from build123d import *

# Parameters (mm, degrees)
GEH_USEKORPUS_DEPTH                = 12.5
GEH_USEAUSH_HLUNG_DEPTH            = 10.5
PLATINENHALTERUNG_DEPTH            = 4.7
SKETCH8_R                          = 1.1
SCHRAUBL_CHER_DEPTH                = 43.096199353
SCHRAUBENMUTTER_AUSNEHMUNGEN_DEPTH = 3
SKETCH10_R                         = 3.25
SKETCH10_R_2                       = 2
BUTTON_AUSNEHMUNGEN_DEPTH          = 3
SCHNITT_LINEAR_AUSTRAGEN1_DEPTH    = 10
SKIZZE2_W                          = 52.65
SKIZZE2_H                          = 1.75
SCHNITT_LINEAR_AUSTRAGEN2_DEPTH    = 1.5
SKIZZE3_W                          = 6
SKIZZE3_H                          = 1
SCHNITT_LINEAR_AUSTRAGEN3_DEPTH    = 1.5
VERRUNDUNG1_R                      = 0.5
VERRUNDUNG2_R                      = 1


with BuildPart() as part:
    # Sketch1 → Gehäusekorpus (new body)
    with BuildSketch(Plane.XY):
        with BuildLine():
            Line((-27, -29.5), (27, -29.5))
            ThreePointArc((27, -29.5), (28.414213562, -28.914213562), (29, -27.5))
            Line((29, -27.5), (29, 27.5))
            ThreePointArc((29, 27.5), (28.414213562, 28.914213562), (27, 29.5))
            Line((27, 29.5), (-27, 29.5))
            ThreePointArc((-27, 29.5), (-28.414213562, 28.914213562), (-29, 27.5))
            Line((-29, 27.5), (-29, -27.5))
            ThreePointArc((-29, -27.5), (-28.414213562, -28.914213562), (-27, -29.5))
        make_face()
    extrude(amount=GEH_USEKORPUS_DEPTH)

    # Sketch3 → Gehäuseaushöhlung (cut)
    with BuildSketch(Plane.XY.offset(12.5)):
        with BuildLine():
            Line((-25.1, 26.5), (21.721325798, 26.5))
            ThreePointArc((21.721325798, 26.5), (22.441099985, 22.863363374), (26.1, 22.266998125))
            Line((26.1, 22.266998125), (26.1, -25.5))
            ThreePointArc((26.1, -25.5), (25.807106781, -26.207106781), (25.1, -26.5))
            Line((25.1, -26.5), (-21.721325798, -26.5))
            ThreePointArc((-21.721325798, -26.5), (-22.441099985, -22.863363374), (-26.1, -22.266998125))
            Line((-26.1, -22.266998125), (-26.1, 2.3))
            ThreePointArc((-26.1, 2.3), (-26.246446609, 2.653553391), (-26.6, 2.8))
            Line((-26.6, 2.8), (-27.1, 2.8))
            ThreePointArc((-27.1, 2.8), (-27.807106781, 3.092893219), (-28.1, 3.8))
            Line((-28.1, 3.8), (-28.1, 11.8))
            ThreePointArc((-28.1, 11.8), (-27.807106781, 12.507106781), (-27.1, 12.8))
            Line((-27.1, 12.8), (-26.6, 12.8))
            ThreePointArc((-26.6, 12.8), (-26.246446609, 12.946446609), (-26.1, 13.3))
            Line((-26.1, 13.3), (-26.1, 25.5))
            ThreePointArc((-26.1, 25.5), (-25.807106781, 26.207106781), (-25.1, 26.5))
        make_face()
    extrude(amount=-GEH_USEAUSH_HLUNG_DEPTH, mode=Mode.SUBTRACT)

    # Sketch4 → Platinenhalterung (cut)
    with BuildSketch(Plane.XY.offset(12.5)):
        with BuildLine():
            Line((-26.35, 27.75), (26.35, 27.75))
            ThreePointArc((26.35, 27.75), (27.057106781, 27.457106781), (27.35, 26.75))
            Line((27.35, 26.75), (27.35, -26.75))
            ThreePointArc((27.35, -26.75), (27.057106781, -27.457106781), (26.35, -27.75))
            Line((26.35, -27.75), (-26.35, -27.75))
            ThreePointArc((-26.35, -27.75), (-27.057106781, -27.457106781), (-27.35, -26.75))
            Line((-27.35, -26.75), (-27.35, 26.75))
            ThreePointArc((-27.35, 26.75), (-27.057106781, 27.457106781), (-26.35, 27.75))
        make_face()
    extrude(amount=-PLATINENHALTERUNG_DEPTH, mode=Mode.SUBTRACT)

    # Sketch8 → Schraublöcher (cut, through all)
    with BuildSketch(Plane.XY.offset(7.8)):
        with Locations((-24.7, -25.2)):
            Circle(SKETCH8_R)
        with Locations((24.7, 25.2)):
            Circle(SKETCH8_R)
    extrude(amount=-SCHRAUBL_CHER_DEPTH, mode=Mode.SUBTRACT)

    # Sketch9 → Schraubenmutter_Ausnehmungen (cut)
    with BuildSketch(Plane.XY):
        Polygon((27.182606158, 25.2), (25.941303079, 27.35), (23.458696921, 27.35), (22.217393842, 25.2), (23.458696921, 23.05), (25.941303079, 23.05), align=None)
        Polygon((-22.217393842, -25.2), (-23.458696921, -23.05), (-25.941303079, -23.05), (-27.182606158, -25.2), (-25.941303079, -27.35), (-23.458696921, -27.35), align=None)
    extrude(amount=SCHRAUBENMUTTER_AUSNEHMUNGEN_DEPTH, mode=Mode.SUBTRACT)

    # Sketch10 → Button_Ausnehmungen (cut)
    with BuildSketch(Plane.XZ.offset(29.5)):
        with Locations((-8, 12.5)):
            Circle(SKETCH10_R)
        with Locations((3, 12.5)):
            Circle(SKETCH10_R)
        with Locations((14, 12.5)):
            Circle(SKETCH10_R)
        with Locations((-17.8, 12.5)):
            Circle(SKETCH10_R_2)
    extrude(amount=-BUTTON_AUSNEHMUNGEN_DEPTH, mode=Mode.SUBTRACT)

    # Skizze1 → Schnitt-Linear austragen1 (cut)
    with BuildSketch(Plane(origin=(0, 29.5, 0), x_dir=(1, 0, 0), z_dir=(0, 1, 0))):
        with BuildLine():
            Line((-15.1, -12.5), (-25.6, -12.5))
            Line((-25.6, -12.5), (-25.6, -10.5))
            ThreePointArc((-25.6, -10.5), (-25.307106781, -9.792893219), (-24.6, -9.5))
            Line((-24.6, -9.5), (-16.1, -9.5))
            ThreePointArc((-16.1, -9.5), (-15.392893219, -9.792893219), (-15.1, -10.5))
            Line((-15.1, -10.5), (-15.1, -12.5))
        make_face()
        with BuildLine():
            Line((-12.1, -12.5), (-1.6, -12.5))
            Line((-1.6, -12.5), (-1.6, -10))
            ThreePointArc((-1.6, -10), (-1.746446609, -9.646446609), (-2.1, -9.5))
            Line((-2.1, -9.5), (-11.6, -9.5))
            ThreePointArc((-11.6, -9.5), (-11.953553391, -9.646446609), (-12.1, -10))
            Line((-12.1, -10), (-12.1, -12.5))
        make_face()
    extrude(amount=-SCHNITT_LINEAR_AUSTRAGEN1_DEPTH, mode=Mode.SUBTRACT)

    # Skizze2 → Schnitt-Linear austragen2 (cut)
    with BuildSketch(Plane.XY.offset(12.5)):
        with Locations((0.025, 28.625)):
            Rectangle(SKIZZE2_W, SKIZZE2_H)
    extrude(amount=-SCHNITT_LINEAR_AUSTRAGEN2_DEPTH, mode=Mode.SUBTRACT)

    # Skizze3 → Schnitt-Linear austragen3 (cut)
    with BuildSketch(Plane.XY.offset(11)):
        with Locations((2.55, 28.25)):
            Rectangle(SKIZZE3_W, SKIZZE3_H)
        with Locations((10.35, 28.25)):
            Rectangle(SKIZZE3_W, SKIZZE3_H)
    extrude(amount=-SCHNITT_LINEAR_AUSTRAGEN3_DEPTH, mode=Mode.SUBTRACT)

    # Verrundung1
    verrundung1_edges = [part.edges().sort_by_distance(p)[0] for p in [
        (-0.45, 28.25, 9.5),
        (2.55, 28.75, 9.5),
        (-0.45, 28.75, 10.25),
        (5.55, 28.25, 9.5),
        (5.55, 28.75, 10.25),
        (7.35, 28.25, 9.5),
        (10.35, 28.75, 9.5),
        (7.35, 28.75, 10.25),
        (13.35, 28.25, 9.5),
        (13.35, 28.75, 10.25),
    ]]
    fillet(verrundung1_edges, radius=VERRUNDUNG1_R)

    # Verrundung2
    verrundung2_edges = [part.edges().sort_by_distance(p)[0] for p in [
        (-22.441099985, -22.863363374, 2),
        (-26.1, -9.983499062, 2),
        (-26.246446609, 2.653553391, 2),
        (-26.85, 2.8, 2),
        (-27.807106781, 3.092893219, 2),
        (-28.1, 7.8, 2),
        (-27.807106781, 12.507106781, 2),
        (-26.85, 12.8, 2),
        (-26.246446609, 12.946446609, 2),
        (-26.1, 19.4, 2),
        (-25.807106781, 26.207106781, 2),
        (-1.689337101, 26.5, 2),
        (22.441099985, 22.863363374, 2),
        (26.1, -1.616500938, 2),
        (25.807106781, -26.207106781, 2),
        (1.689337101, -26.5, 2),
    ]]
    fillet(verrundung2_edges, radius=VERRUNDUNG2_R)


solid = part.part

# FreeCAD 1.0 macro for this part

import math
import FreeCAD as App
import Part
import Sketcher

V = App.Vector
Q = App.Units.Quantity


def edges_at(feature, points):
    """Names of the edges that pass closest to the given points."""
    edges = feature.Shape.Edges
    near = lambda p: min(range(len(edges)), key=lambda i: edges[i].distToShape(Part.Vertex(*p))[0])
    return sorted({f"Edge{near(p) + 1}" for p in points})


def add_polygon(sketch, points):
    """Adds a closed chain of lines whose ends are joined by coincident constraints."""
    first, n = sketch.GeometryCount, len(points)
    for a, b in zip(points, points[1:] + points[:1]):
        sketch.addGeometry(Part.LineSegment(App.Vector(*a, 0), App.Vector(*b, 0)), False)
    for i in range(n):
        sketch.addConstraint(Sketcher.Constraint("Coincident", first + i, 2, first + (i + 1) % n, 1))

doc = App.newDocument("Part")
body = doc.addObject("PartDesign::Body", "Body")

sketch1 = doc.addObject("Sketcher::SketchObject", "Sketch")
body.addObject(sketch1)
sketch1.AttachmentSupport = (doc.XY_Plane, [""])
sketch1.MapMode = "FlatFace"
sketch1.addGeometry(Part.LineSegment(V(-27, -29.5, 0), V(27, -29.5, 0)), False)
sketch1.addGeometry(Part.ArcOfCircle(Part.Circle(V(27, -27.5, 0), V(0, 0, 1), 2), math.radians(-90), math.radians(0)), False)
sketch1.addGeometry(Part.LineSegment(V(29, -27.5, 0), V(29, 27.5, 0)), False)
sketch1.addGeometry(Part.ArcOfCircle(Part.Circle(V(27, 27.5, 0), V(0, 0, 1), 2), math.radians(0), math.radians(90)), False)
sketch1.addGeometry(Part.LineSegment(V(27, 29.5, 0), V(-27, 29.5, 0)), False)
sketch1.addGeometry(Part.ArcOfCircle(Part.Circle(V(-27, 27.5, 0), V(0, 0, 1), 2), math.radians(90), math.radians(180)), False)
sketch1.addGeometry(Part.LineSegment(V(-29, 27.5, 0), V(-29, -27.5, 0)), False)
sketch1.addGeometry(Part.ArcOfCircle(Part.Circle(V(-27, -27.5, 0), V(0, 0, 1), 2), math.radians(-180), math.radians(-90)), False)
sketch1.addConstraint(Sketcher.Constraint("Tangent", 0, 2, 1, 1))
sketch1.addConstraint(Sketcher.Constraint("Tangent", 1, 2, 2, 1))
sketch1.addConstraint(Sketcher.Constraint("Tangent", 2, 2, 3, 1))
sketch1.addConstraint(Sketcher.Constraint("Tangent", 3, 2, 4, 1))
sketch1.addConstraint(Sketcher.Constraint("Tangent", 4, 2, 5, 1))
sketch1.addConstraint(Sketcher.Constraint("Tangent", 5, 2, 6, 1))
sketch1.addConstraint(Sketcher.Constraint("Tangent", 6, 2, 7, 1))
sketch1.addConstraint(Sketcher.Constraint("Tangent", 7, 2, 0, 1))
sketch1.addConstraint(Sketcher.Constraint("Horizontal", 0))
sketch1.addConstraint(Sketcher.Constraint("Vertical", 2))
sketch1.addConstraint(Sketcher.Constraint("Horizontal", 4))
sketch1.addConstraint(Sketcher.Constraint("Vertical", 6))
sketch1.addConstraint(Sketcher.Constraint("Equal", 1, 3))
sketch1.addConstraint(Sketcher.Constraint("Equal", 3, 5))
sketch1.addConstraint(Sketcher.Constraint("Equal", 5, 7))
sketch1.addConstraint(Sketcher.Constraint("Symmetric", 1, 3, 5, 3, -1, 1))
sketch1.addConstraint(Sketcher.Constraint("Radius", 1, Q("2 mm")))
sketch1.addConstraint(Sketcher.Constraint("DistanceX", 0, 1, 0, 2, Q("54 mm")))
sketch1.addConstraint(Sketcher.Constraint("DistanceY", 2, 1, 2, 2, Q("55 mm")))
pad1 = doc.addObject("PartDesign::Pad", "Pad")
body.addObject(pad1)
pad1.Profile = sketch1
pad1.Length = 12.5

sketch2 = doc.addObject("Sketcher::SketchObject", "Sketch001")
body.addObject(sketch2)
sketch2.AttachmentSupport = (doc.XY_Plane, [""])
sketch2.MapMode = "FlatFace"
sketch2.AttachmentOffset = App.Placement(V(0, 0, 12.5), App.Rotation())
sketch2.addGeometry(Part.LineSegment(V(21.72, 26.5, 0), V(-25.1, 26.5, 0)), False)
sketch2.addGeometry(Part.ArcOfCircle(Part.Circle(V(-25.1, 25.5, 0), V(0, 0, 1), 1), math.radians(90), math.radians(180)), False)
sketch2.addGeometry(Part.LineSegment(V(-26.1, 25.5, 0), V(-26.1, 13.3, 0)), False)
sketch2.addGeometry(Part.ArcOfCircle(Part.Circle(V(-26.6, 13.3, 0), V(0, 0, 1), 0.5), math.radians(-90), math.radians(0)), False)
sketch2.addGeometry(Part.LineSegment(V(-26.6, 12.8, 0), V(-27.1, 12.8, 0)), False)
sketch2.addGeometry(Part.ArcOfCircle(Part.Circle(V(-27.1, 11.8, 0), V(0, 0, 1), 1), math.radians(90), math.radians(180)), False)
sketch2.addGeometry(Part.LineSegment(V(-28.1, 11.8, 0), V(-28.1, 3.8, 0)), False)
sketch2.addGeometry(Part.ArcOfCircle(Part.Circle(V(-27.1, 3.8, 0), V(0, 0, 1), 1), math.radians(-180), math.radians(-90)), False)
sketch2.addGeometry(Part.LineSegment(V(-27.1, 2.8, 0), V(-26.6, 2.8, 0)), False)
sketch2.addGeometry(Part.ArcOfCircle(Part.Circle(V(-26.6, 2.3, 0), V(0, 0, 1), 0.5), math.radians(0), math.radians(90)), False)
sketch2.addGeometry(Part.LineSegment(V(-26.1, 2.3, 0), V(-26.1, -22.27, 0)), False)
sketch2.addGeometry(Part.ArcOfCircle(Part.Circle(V(-24.7, -25.2, 0), V(0, 0, 1), 3.25), math.radians(-24), math.radians(116)), False)
sketch2.addGeometry(Part.LineSegment(V(-21.72, -26.5, 0), V(25.1, -26.5, 0)), False)
sketch2.addGeometry(Part.ArcOfCircle(Part.Circle(V(25.1, -25.5, 0), V(0, 0, 1), 1), math.radians(-90), math.radians(0)), False)
sketch2.addGeometry(Part.LineSegment(V(26.1, -25.5, 0), V(26.1, 22.27, 0)), False)
sketch2.addGeometry(Part.ArcOfCircle(Part.Circle(V(24.7, 25.2, 0), V(0, 0, 1), 3.25), math.radians(156), math.radians(296)), False)
sketch2.addConstraint(Sketcher.Constraint("Tangent", 0, 2, 1, 1))
sketch2.addConstraint(Sketcher.Constraint("Tangent", 1, 2, 2, 1))
sketch2.addConstraint(Sketcher.Constraint("Tangent", 2, 2, 3, 2))
sketch2.addConstraint(Sketcher.Constraint("Tangent", 3, 1, 4, 1))
sketch2.addConstraint(Sketcher.Constraint("Tangent", 4, 2, 5, 1))
sketch2.addConstraint(Sketcher.Constraint("Tangent", 5, 2, 6, 1))
sketch2.addConstraint(Sketcher.Constraint("Tangent", 6, 2, 7, 1))
sketch2.addConstraint(Sketcher.Constraint("Tangent", 7, 2, 8, 1))
sketch2.addConstraint(Sketcher.Constraint("Tangent", 8, 2, 9, 2))
sketch2.addConstraint(Sketcher.Constraint("Tangent", 9, 1, 10, 1))
sketch2.addConstraint(Sketcher.Constraint("Coincident", 10, 2, 11, 2))
sketch2.addConstraint(Sketcher.Constraint("Coincident", 11, 1, 12, 1))
sketch2.addConstraint(Sketcher.Constraint("Tangent", 12, 2, 13, 1))
sketch2.addConstraint(Sketcher.Constraint("Tangent", 13, 2, 14, 1))
sketch2.addConstraint(Sketcher.Constraint("Coincident", 14, 2, 15, 2))
sketch2.addConstraint(Sketcher.Constraint("Coincident", 15, 1, 0, 1))
sketch2.addConstraint(Sketcher.Constraint("Horizontal", 0))
sketch2.addConstraint(Sketcher.Constraint("Vertical", 2))
sketch2.addConstraint(Sketcher.Constraint("Horizontal", 4))
sketch2.addConstraint(Sketcher.Constraint("Vertical", 6))
sketch2.addConstraint(Sketcher.Constraint("Horizontal", 8))
sketch2.addConstraint(Sketcher.Constraint("Vertical", 10))
sketch2.addConstraint(Sketcher.Constraint("Horizontal", 12))
sketch2.addConstraint(Sketcher.Constraint("Vertical", 14))
sketch2.addConstraint(Sketcher.Constraint("Equal", 1, 5))
sketch2.addConstraint(Sketcher.Constraint("Equal", 5, 7))
sketch2.addConstraint(Sketcher.Constraint("Equal", 3, 9))
sketch2.addConstraint(Sketcher.Constraint("Equal", 7, 13))
sketch2.addConstraint(Sketcher.Constraint("Equal", 11, 15))
sketch2.addConstraint(Sketcher.Constraint("Symmetric", 1, 3, 13, 3, -1, 1))
sketch2.addConstraint(Sketcher.Constraint("Symmetric", 11, 3, 15, 3, -1, 1))
sketch2.addConstraint(Sketcher.Constraint("Vertical", 3, 3, 9, 3))
sketch2.addConstraint(Sketcher.Constraint("Radius", 1, Q("1 mm")))
sketch2.addConstraint(Sketcher.Constraint("Radius", 3, Q("0.5 mm")))
sketch2.addConstraint(Sketcher.Constraint("DistanceY", 6, 2, 6, 1, Q("8 mm")))
sketch2.addConstraint(Sketcher.Constraint("Radius", 11, Q("3.25 mm")))
sketch2.addConstraint(Sketcher.Constraint("DistanceX", 4, 2, 4, 1, Q("0.5 mm")))
sketch2.addConstraint(Sketcher.Constraint("DistanceY", 2, 2, 2, 1, Q("12.2 mm")))
sketch2.addConstraint(Sketcher.Constraint("DistanceY", 11, 3, 7, 3, Q("29 mm")))
sketch2.addConstraint(Sketcher.Constraint("DistanceX", 1, 3, -1, 1, Q("25.1 mm")))
sketch2.addConstraint(Sketcher.Constraint("DistanceY", -1, 1, 1, 3, Q("25.5 mm")))
sketch2.addConstraint(Sketcher.Constraint("DistanceX", 11, 3, -1, 1, Q("24.7 mm")))
pocket1 = doc.addObject("PartDesign::Pocket", "Pocket")
body.addObject(pocket1)
pocket1.Profile = sketch2
pocket1.Length = 10.5

sketch3 = doc.addObject("Sketcher::SketchObject", "Sketch002")
body.addObject(sketch3)
sketch3.AttachmentSupport = (doc.XY_Plane, [""])
sketch3.MapMode = "FlatFace"
sketch3.AttachmentOffset = App.Placement(V(0, 0, 12.5), App.Rotation())
sketch3.addGeometry(Part.LineSegment(V(26.4, 27.8, 0), V(-26.4, 27.8, 0)), False)
sketch3.addGeometry(Part.ArcOfCircle(Part.Circle(V(-26.3, 26.7, 0), V(0, 0, 1), 1), math.radians(90), math.radians(180)), False)
sketch3.addGeometry(Part.LineSegment(V(-27.4, 26.8, 0), V(-27.4, -26.8, 0)), False)
sketch3.addGeometry(Part.ArcOfCircle(Part.Circle(V(-26.3, -26.7, 0), V(0, 0, 1), 1), math.radians(-180), math.radians(-90)), False)
sketch3.addGeometry(Part.LineSegment(V(-26.4, -27.8, 0), V(26.4, -27.8, 0)), False)
sketch3.addGeometry(Part.ArcOfCircle(Part.Circle(V(26.3, -26.7, 0), V(0, 0, 1), 1), math.radians(-90), math.radians(0)), False)
sketch3.addGeometry(Part.LineSegment(V(27.4, -26.8, 0), V(27.4, 26.8, 0)), False)
sketch3.addGeometry(Part.ArcOfCircle(Part.Circle(V(26.3, 26.7, 0), V(0, 0, 1), 1), math.radians(0), math.radians(90)), False)
sketch3.addConstraint(Sketcher.Constraint("Tangent", 0, 2, 1, 1))
sketch3.addConstraint(Sketcher.Constraint("Tangent", 1, 2, 2, 1))
sketch3.addConstraint(Sketcher.Constraint("Tangent", 2, 2, 3, 1))
sketch3.addConstraint(Sketcher.Constraint("Tangent", 3, 2, 4, 1))
sketch3.addConstraint(Sketcher.Constraint("Tangent", 4, 2, 5, 1))
sketch3.addConstraint(Sketcher.Constraint("Tangent", 5, 2, 6, 1))
sketch3.addConstraint(Sketcher.Constraint("Tangent", 6, 2, 7, 1))
sketch3.addConstraint(Sketcher.Constraint("Tangent", 7, 2, 0, 1))
sketch3.addConstraint(Sketcher.Constraint("Horizontal", 0))
sketch3.addConstraint(Sketcher.Constraint("Vertical", 2))
sketch3.addConstraint(Sketcher.Constraint("Horizontal", 4))
sketch3.addConstraint(Sketcher.Constraint("Vertical", 6))
sketch3.addConstraint(Sketcher.Constraint("Equal", 1, 3))
sketch3.addConstraint(Sketcher.Constraint("Equal", 3, 5))
sketch3.addConstraint(Sketcher.Constraint("Equal", 5, 7))
sketch3.addConstraint(Sketcher.Constraint("Symmetric", 1, 3, 5, 3, -1, 1))
sketch3.addConstraint(Sketcher.Constraint("Radius", 1, Q("1 mm")))
sketch3.addConstraint(Sketcher.Constraint("DistanceX", 0, 2, 0, 1, Q("52.7 mm")))
sketch3.addConstraint(Sketcher.Constraint("DistanceY", 2, 2, 2, 1, Q("53.5 mm")))
pocket2 = doc.addObject("PartDesign::Pocket", "Pocket001")
body.addObject(pocket2)
pocket2.Profile = sketch3
pocket2.Length = 4.7

sketch4 = doc.addObject("Sketcher::SketchObject", "Sketch003")
body.addObject(sketch4)
sketch4.AttachmentSupport = (doc.XY_Plane, [""])
sketch4.MapMode = "FlatFace"
sketch4.AttachmentOffset = App.Placement(V(0, 0, 7.8), App.Rotation())
sketch4.addGeometry(Part.Circle(V(-24.7, -25.2, 0), V(0, 0, 1), 1.1), False)
sketch4.addGeometry(Part.Circle(V(24.7, 25.2, 0), V(0, 0, 1), 1.1), False)
sketch4.addConstraint(Sketcher.Constraint("Equal", 0, 1))
sketch4.addConstraint(Sketcher.Constraint("Symmetric", 0, 3, 1, 3, -1, 1))
sketch4.addConstraint(Sketcher.Constraint("Diameter", 0, Q("2.2 mm")))
sketch4.addConstraint(Sketcher.Constraint("DistanceX", 0, 3, -1, 1, Q("24.7 mm")))
sketch4.addConstraint(Sketcher.Constraint("DistanceY", 0, 3, -1, 1, Q("25.2 mm")))
pocket3 = doc.addObject("PartDesign::Pocket", "Pocket002")
body.addObject(pocket3)
pocket3.Profile = sketch4
pocket3.Type = "ThroughAll"

sketch5 = doc.addObject("Sketcher::SketchObject", "Sketch004")
body.addObject(sketch5)
sketch5.AttachmentSupport = (doc.XY_Plane, [""])
sketch5.MapMode = "FlatFace"
add_polygon(sketch5, [(27.2, 25.2), (25.9, 27.4), (23.5, 27.4), (22.2, 25.2), (23.5, 23.1), (25.9, 23.1)])
add_polygon(sketch5, [(-22.2, -25.2), (-23.5, -23.1), (-25.9, -23.1), (-27.2, -25.2), (-25.9, -27.4), (-23.5, -27.4)])
sketch5.addConstraint(Sketcher.Constraint("Horizontal", 1))
sketch5.addConstraint(Sketcher.Constraint("Horizontal", 4))
sketch5.addConstraint(Sketcher.Constraint("Horizontal", 7))
sketch5.addConstraint(Sketcher.Constraint("Horizontal", 10))
sketch5.addConstraint(Sketcher.Constraint("Symmetric", 3, 2, 6, 2, -1, 1))
sketch5.addConstraint(Sketcher.Constraint("Symmetric", 5, 2, 8, 2, -1, 1))
sketch5.addConstraint(Sketcher.Constraint("Symmetric", 0, 2, 9, 2, -1, 1))
sketch5.addConstraint(Sketcher.Constraint("Symmetric", 2, 2, 11, 2, -1, 1))
sketch5.addConstraint(Sketcher.Constraint("Parallel", 0, 3))
sketch5.addConstraint(Sketcher.Constraint("Parallel", 2, 5))
sketch5.addConstraint(Sketcher.Constraint("Parallel", 5, 8))
sketch5.addConstraint(Sketcher.Constraint("Parallel", 8, 11))
sketch5.addConstraint(Sketcher.Constraint("Horizontal", 2, 2, 5, 2))
sketch5.addConstraint(Sketcher.Constraint("Vertical", 1, 2, 3, 2))
sketch5.addConstraint(Sketcher.Constraint("Vertical", 0, 2, 4, 2))
sketch5.addConstraint(Sketcher.Constraint("Angle", 0, Q("120 deg")))
sketch5.addConstraint(Sketcher.Constraint("DistanceY", -1, 1, 2, 2, Q("25.2 mm")))
sketch5.addConstraint(Sketcher.Constraint("DistanceY", 3, 2, 1, 2, Q("4.3 mm")))
sketch5.addConstraint(Sketcher.Constraint("DistanceX", 6, 2, 4, 2, Q("49.4 mm")))
sketch5.addConstraint(Sketcher.Constraint("DistanceX", 1, 2, 1, 1, Q("2.482606 mm")))
pocket4 = doc.addObject("PartDesign::Pocket", "Pocket003")
body.addObject(pocket4)
pocket4.Profile = sketch5
pocket4.Length = 3
pocket4.Reversed = True

sketch6 = doc.addObject("Sketcher::SketchObject", "Sketch005")
body.addObject(sketch6)
sketch6.AttachmentSupport = (doc.XZ_Plane, [""])
sketch6.MapMode = "FlatFace"
sketch6.AttachmentOffset = App.Placement(V(0, 0, 29.5), App.Rotation())
sketch6.addGeometry(Part.Circle(V(-8, 12.5, 0), V(0, 0, 1), 3.2), False)
sketch6.addGeometry(Part.Circle(V(3, 12.5, 0), V(0, 0, 1), 3.2), False)
sketch6.addGeometry(Part.Circle(V(14, 12.5, 0), V(0, 0, 1), 3.2), False)
sketch6.addGeometry(Part.Circle(V(-17.8, 12.5, 0), V(0, 0, 1), 2), False)
sketch6.addConstraint(Sketcher.Constraint("Equal", 0, 1))
sketch6.addConstraint(Sketcher.Constraint("Equal", 1, 2))
sketch6.addConstraint(Sketcher.Constraint("Horizontal", 0, 3, 1, 3))
sketch6.addConstraint(Sketcher.Constraint("Horizontal", 1, 3, 2, 3))
sketch6.addConstraint(Sketcher.Constraint("Horizontal", 2, 3, 3, 3))
sketch6.addConstraint(Sketcher.Constraint("Diameter", 3, Q("4 mm")))
sketch6.addConstraint(Sketcher.Constraint("Diameter", 0, Q("6.5 mm")))
sketch6.addConstraint(Sketcher.Constraint("DistanceX", 0, 3, -1, 1, Q("8 mm")))
sketch6.addConstraint(Sketcher.Constraint("DistanceX", -1, 1, 1, 3, Q("3 mm")))
sketch6.addConstraint(Sketcher.Constraint("DistanceX", -1, 1, 2, 3, Q("14 mm")))
sketch6.addConstraint(Sketcher.Constraint("DistanceY", -1, 1, 0, 3, Q("12.5 mm")))
sketch6.addConstraint(Sketcher.Constraint("DistanceX", 3, 3, -1, 1, Q("17.8 mm")))
pocket5 = doc.addObject("PartDesign::Pocket", "Pocket004")
body.addObject(pocket5)
pocket5.Profile = sketch6
pocket5.Length = 3

sketch7 = doc.addObject("Sketcher::SketchObject", "Sketch006")
body.addObject(sketch7)
sketch7.AttachmentSupport = (doc.XZ_Plane, [""])
sketch7.MapMode = "FlatFace"
sketch7.AttachmentOffset = App.Placement(V(0, 0, -29.5), App.Rotation())
sketch7.addGeometry(Part.LineSegment(V(-25.6, 12.5, 0), V(-15.1, 12.5, 0)), False)
sketch7.addGeometry(Part.LineSegment(V(-15.1, 12.5, 0), V(-15.1, 10.5, 0)), False)
sketch7.addGeometry(Part.ArcOfCircle(Part.Circle(V(-16.1, 10.5, 0), V(0, 0, 1), 1), math.radians(-90), math.radians(0)), False)
sketch7.addGeometry(Part.LineSegment(V(-16.1, 9.5, 0), V(-24.6, 9.5, 0)), False)
sketch7.addGeometry(Part.ArcOfCircle(Part.Circle(V(-24.6, 10.5, 0), V(0, 0, 1), 1), math.radians(-180), math.radians(-90)), False)
sketch7.addGeometry(Part.LineSegment(V(-25.6, 10.5, 0), V(-25.6, 12.5, 0)), False)
sketch7.addGeometry(Part.LineSegment(V(-12.1, 12.5, 0), V(-1.6, 12.5, 0)), False)
sketch7.addGeometry(Part.LineSegment(V(-1.6, 12.5, 0), V(-1.6, 10, 0)), False)
sketch7.addGeometry(Part.ArcOfCircle(Part.Circle(V(-2.1, 10, 0), V(0, 0, 1), 0.5), math.radians(-90), math.radians(0)), False)
sketch7.addGeometry(Part.LineSegment(V(-2.1, 9.5, 0), V(-11.6, 9.5, 0)), False)
sketch7.addGeometry(Part.ArcOfCircle(Part.Circle(V(-11.6, 10, 0), V(0, 0, 1), 0.5), math.radians(180), math.radians(270)), False)
sketch7.addGeometry(Part.LineSegment(V(-12.1, 10, 0), V(-12.1, 12.5, 0)), False)
sketch7.addConstraint(Sketcher.Constraint("Coincident", 0, 2, 1, 1))
sketch7.addConstraint(Sketcher.Constraint("Tangent", 1, 2, 2, 2))
sketch7.addConstraint(Sketcher.Constraint("Tangent", 2, 1, 3, 1))
sketch7.addConstraint(Sketcher.Constraint("Tangent", 3, 2, 4, 2))
sketch7.addConstraint(Sketcher.Constraint("Tangent", 4, 1, 5, 1))
sketch7.addConstraint(Sketcher.Constraint("Coincident", 5, 2, 0, 1))
sketch7.addConstraint(Sketcher.Constraint("Coincident", 6, 2, 7, 1))
sketch7.addConstraint(Sketcher.Constraint("Tangent", 7, 2, 8, 2))
sketch7.addConstraint(Sketcher.Constraint("Tangent", 8, 1, 9, 1))
sketch7.addConstraint(Sketcher.Constraint("Tangent", 9, 2, 10, 2))
sketch7.addConstraint(Sketcher.Constraint("Tangent", 10, 1, 11, 1))
sketch7.addConstraint(Sketcher.Constraint("Coincident", 11, 2, 6, 1))
sketch7.addConstraint(Sketcher.Constraint("Horizontal", 0))
sketch7.addConstraint(Sketcher.Constraint("Vertical", 1))
sketch7.addConstraint(Sketcher.Constraint("Horizontal", 3))
sketch7.addConstraint(Sketcher.Constraint("Vertical", 5))
sketch7.addConstraint(Sketcher.Constraint("Horizontal", 6))
sketch7.addConstraint(Sketcher.Constraint("Vertical", 7))
sketch7.addConstraint(Sketcher.Constraint("Horizontal", 9))
sketch7.addConstraint(Sketcher.Constraint("Vertical", 11))
sketch7.addConstraint(Sketcher.Constraint("Equal", 2, 4))
sketch7.addConstraint(Sketcher.Constraint("Equal", 8, 10))
sketch7.addConstraint(Sketcher.Constraint("Horizontal", 5, 2, 6, 2))
sketch7.addConstraint(Sketcher.Constraint("Horizontal", 3, 2, 8, 1))
sketch7.addConstraint(Sketcher.Constraint("Equal", 0, 6))
sketch7.addConstraint(Sketcher.Constraint("Radius", 2, Q("1 mm")))
sketch7.addConstraint(Sketcher.Constraint("Radius", 8, Q("0.5 mm")))
sketch7.addConstraint(Sketcher.Constraint("DistanceY", 1, 2, 1, 1, Q("2 mm")))
sketch7.addConstraint(Sketcher.Constraint("DistanceX", 0, 1, 0, 2, Q("10.5 mm")))
sketch7.addConstraint(Sketcher.Constraint("DistanceY", -1, 1, 8, 3, Q("10 mm")))
sketch7.addConstraint(Sketcher.Constraint("DistanceX", 2, 3, 8, 3, Q("14 mm")))
sketch7.addConstraint(Sketcher.Constraint("DistanceX", 2, 3, -1, 1, Q("16.1 mm")))
pocket6 = doc.addObject("PartDesign::Pocket", "Pocket005")
body.addObject(pocket6)
pocket6.Profile = sketch7
pocket6.Length = 10
pocket6.Reversed = True

sketch8 = doc.addObject("Sketcher::SketchObject", "Sketch007")
body.addObject(sketch8)
sketch8.AttachmentSupport = (doc.XY_Plane, [""])
sketch8.MapMode = "FlatFace"
sketch8.AttachmentOffset = App.Placement(V(0, 0, 12.5), App.Rotation())
add_polygon(sketch8, [(-26.3, 29.5), (-26.3, 27.8), (26.4, 27.8), (26.4, 29.5)])
sketch8.addConstraint(Sketcher.Constraint("Vertical", 0))
sketch8.addConstraint(Sketcher.Constraint("Horizontal", 1))
sketch8.addConstraint(Sketcher.Constraint("Vertical", 2))
sketch8.addConstraint(Sketcher.Constraint("Horizontal", 3))
sketch8.addConstraint(Sketcher.Constraint("DistanceX", 1, 1, 1, 2, Q("52.65 mm")))
sketch8.addConstraint(Sketcher.Constraint("DistanceY", 0, 2, 0, 1, Q("1.75 mm")))
sketch8.addConstraint(Sketcher.Constraint("DistanceX", 0, 2, -1, 1, Q("26.3 mm")))
sketch8.addConstraint(Sketcher.Constraint("DistanceY", -1, 1, 2, 2, Q("29.5 mm")))
pocket7 = doc.addObject("PartDesign::Pocket", "Pocket006")
body.addObject(pocket7)
pocket7.Profile = sketch8
pocket7.Length = 1.5

sketch9 = doc.addObject("Sketcher::SketchObject", "Sketch008")
body.addObject(sketch9)
sketch9.AttachmentSupport = (doc.XY_Plane, [""])
sketch9.MapMode = "FlatFace"
sketch9.AttachmentOffset = App.Placement(V(0, 0, 11), App.Rotation())
add_polygon(sketch9, [(-0.5, 28.8), (-0.5, 27.8), (5.5, 27.8), (5.5, 28.8)])
add_polygon(sketch9, [(7.3, 28.8), (7.3, 27.8), (13.3, 27.8), (13.3, 28.8)])
sketch9.addConstraint(Sketcher.Constraint("Vertical", 0))
sketch9.addConstraint(Sketcher.Constraint("Horizontal", 1))
sketch9.addConstraint(Sketcher.Constraint("Vertical", 2))
sketch9.addConstraint(Sketcher.Constraint("Horizontal", 3))
sketch9.addConstraint(Sketcher.Constraint("Vertical", 4))
sketch9.addConstraint(Sketcher.Constraint("Horizontal", 5))
sketch9.addConstraint(Sketcher.Constraint("Vertical", 6))
sketch9.addConstraint(Sketcher.Constraint("Horizontal", 7))
sketch9.addConstraint(Sketcher.Constraint("Horizontal", 1, 2, 4, 2))
sketch9.addConstraint(Sketcher.Constraint("Horizontal", 3, 2, 6, 2))
sketch9.addConstraint(Sketcher.Constraint("Equal", 3, 5))
sketch9.addConstraint(Sketcher.Constraint("DistanceX", 1, 1, 1, 2, Q("6 mm")))
sketch9.addConstraint(Sketcher.Constraint("DistanceY", 0, 2, 0, 1, Q("1 mm")))
sketch9.addConstraint(Sketcher.Constraint("DistanceX", 1, 2, 4, 2, Q("1.8 mm")))
sketch9.addConstraint(Sketcher.Constraint("DistanceX", 0, 2, -1, 1, Q("0.45 mm")))
sketch9.addConstraint(Sketcher.Constraint("DistanceY", -1, 1, 0, 2, Q("27.75 mm")))
pocket8 = doc.addObject("PartDesign::Pocket", "Pocket007")
body.addObject(pocket8)
pocket8.Profile = sketch9
pocket8.Length = 1.5
doc.recompute()

fillet = doc.addObject("PartDesign::Fillet", "Fillet")
body.addObject(fillet)
fillet.Base = (pocket8, edges_at(pocket8, [
    (-0.45, 28.25, 9.5),
    (2.55, 28.75, 9.5),
    (-0.45, 28.75, 10.25),
    (5.55, 28.25, 9.5),
    (5.55, 28.75, 10.25),
    (7.35, 28.25, 9.5),
    (10.35, 28.75, 9.5),
    (7.35, 28.75, 10.25),
    (13.35, 28.25, 9.5),
    (13.35, 28.75, 10.25),
]))
fillet.Radius = 0.5
doc.recompute()

fillet2 = doc.addObject("PartDesign::Fillet", "Fillet001")
body.addObject(fillet2)
fillet2.Base = (fillet, edges_at(fillet, [
    (-22.441, -22.863, 2),
    (-26.1, -9.983, 2),
    (-26.246, 2.654, 2),
    (-26.85, 2.8, 2),
    (-27.807, 3.093, 2),
    (-28.1, 7.8, 2),
    (-27.807, 12.507, 2),
    (-26.85, 12.8, 2),
    (-26.246, 12.946, 2),
    (-26.1, 19.4, 2),
    (-25.807, 26.207, 2),
    (-1.689, 26.5, 2),
    (22.441, 22.863, 2),
    (26.1, -1.617, 2),
    (25.807, -26.207, 2),
    (1.689, -26.5, 2),
]))
fillet2.Radius = 1

doc.recompute()
